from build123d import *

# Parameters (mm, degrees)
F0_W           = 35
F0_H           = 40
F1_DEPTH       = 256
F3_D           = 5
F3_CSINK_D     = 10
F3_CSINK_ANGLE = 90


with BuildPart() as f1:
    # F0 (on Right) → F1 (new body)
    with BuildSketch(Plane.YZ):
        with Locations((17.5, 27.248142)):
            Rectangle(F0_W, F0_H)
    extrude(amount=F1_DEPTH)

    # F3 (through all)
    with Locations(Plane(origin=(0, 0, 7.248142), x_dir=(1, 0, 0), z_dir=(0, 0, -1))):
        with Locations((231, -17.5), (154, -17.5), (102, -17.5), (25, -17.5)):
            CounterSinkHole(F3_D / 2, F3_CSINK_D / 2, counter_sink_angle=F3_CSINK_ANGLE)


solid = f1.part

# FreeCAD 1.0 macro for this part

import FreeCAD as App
import Part
import Sketcher
from FreeCAD import Vector
Q = App.Units.Quantity


def add_polygon(sketch, points):
    """Adds a closed chain of lines whose ends are joined by coincident constraints."""
    first, n = sketch.GeometryCount, len(points)
    for a, b in zip(points, points[1:] + points[:1]):
        sketch.addGeometry(Part.LineSegment(App.Vector(*a, 0), App.Vector(*b, 0)), False)
    for i in range(n):
        sketch.addConstraint(Sketcher.Constraint("Coincident", first + i, 2, first + (i + 1) % n, 1))

doc = App.newDocument("Part")
body = doc.addObject("PartDesign::Body", "Body")

sketch1 = body.newObject("Sketcher::SketchObject", "Sketch")
sketch1.AttachmentSupport = (doc.getObject("YZ_Plane"), [""])
sketch1.MapMode = "FlatFace"
add_polygon(sketch1, [(0, 47.248142), (0, 7.248142), (35, 7.248142), (35, 47.248142)])
sketch1.addConstraint([
    Sketcher.Constraint("Vertical", 0),
    Sketcher.Constraint("Horizontal", 1),
    Sketcher.Constraint("Vertical", 2),
    Sketcher.Constraint("Horizontal", 3),
    Sketcher.Constraint("PointOnObject", 0, 2, -2),
    Sketcher.Constraint("DistanceX", 1, 1, 1, 2, Q("35 mm")),
    Sketcher.Constraint("DistanceY", 0, 2, 0, 1, Q("40 mm")),
    Sketcher.Constraint("DistanceY", -1, 1, 0, 2, Q("7.248142 mm")),
])
pad1 = body.newObject("PartDesign::Pad", "Pad")
pad1.Profile = sketch1
pad1.Length = 256

sketch2 = body.newObject("Sketcher::SketchObject", "Sketch001")
sketch2.AttachmentSupport = (doc.getObject("XY_Plane"), [""])
sketch2.MapMode = "FlatFace"
sketch2.AttachmentOffset = App.Placement(Vector(0, 0, 7.248142), App.Rotation())
sketch2.addGeometry([
    Part.Circle(Vector(231, 17.5, 0), Vector(0, 0, 1), 2.5),
    Part.Circle(Vector(154, 17.5, 0), Vector(0, 0, 1), 2.5),
    Part.Circle(Vector(102, 17.5, 0), Vector(0, 0, 1), 2.5),
    Part.Circle(Vector(25, 17.5, 0), Vector(0, 0, 1), 2.5),
], False)
sketch2.addConstraint([
    Sketcher.Constraint("Equal", 0, 1),
    Sketcher.Constraint("Equal", 1, 2),
    Sketcher.Constraint("Equal", 2, 3),
    Sketcher.Constraint("Horizontal", 0, 3, 1, 3),
    Sketcher.Constraint("Horizontal", 1, 3, 2, 3),
    Sketcher.Constraint("Horizontal", 2, 3, 3, 3),
    Sketcher.Constraint("Diameter", 0, Q("5 mm")),
    Sketcher.Constraint("DistanceX", -1, 1, 0, 3, Q("231 mm")),
    Sketcher.Constraint("DistanceX", -1, 1, 1, 3, Q("154 mm")),
    Sketcher.Constraint("DistanceX", -1, 1, 2, 3, Q("102 mm")),
    Sketcher.Constraint("DistanceX", -1, 1, 3, 3, Q("25 mm")),
    Sketcher.Constraint("DistanceY", -1, 1, 0, 3, Q("17.5 mm")),
])
doc.recompute()
hole = body.newObject("PartDesign::Hole", "Hole")
hole.Profile = sketch2
hole.ThreadType = "None"
hole.Diameter = 5
hole.DepthType = "ThroughAll"
hole.HoleCutType = "Countersink"
hole.HoleCutDiameter = 10
hole.HoleCutCountersinkAngle = 90
hole.Reversed = True

doc.recompute()
